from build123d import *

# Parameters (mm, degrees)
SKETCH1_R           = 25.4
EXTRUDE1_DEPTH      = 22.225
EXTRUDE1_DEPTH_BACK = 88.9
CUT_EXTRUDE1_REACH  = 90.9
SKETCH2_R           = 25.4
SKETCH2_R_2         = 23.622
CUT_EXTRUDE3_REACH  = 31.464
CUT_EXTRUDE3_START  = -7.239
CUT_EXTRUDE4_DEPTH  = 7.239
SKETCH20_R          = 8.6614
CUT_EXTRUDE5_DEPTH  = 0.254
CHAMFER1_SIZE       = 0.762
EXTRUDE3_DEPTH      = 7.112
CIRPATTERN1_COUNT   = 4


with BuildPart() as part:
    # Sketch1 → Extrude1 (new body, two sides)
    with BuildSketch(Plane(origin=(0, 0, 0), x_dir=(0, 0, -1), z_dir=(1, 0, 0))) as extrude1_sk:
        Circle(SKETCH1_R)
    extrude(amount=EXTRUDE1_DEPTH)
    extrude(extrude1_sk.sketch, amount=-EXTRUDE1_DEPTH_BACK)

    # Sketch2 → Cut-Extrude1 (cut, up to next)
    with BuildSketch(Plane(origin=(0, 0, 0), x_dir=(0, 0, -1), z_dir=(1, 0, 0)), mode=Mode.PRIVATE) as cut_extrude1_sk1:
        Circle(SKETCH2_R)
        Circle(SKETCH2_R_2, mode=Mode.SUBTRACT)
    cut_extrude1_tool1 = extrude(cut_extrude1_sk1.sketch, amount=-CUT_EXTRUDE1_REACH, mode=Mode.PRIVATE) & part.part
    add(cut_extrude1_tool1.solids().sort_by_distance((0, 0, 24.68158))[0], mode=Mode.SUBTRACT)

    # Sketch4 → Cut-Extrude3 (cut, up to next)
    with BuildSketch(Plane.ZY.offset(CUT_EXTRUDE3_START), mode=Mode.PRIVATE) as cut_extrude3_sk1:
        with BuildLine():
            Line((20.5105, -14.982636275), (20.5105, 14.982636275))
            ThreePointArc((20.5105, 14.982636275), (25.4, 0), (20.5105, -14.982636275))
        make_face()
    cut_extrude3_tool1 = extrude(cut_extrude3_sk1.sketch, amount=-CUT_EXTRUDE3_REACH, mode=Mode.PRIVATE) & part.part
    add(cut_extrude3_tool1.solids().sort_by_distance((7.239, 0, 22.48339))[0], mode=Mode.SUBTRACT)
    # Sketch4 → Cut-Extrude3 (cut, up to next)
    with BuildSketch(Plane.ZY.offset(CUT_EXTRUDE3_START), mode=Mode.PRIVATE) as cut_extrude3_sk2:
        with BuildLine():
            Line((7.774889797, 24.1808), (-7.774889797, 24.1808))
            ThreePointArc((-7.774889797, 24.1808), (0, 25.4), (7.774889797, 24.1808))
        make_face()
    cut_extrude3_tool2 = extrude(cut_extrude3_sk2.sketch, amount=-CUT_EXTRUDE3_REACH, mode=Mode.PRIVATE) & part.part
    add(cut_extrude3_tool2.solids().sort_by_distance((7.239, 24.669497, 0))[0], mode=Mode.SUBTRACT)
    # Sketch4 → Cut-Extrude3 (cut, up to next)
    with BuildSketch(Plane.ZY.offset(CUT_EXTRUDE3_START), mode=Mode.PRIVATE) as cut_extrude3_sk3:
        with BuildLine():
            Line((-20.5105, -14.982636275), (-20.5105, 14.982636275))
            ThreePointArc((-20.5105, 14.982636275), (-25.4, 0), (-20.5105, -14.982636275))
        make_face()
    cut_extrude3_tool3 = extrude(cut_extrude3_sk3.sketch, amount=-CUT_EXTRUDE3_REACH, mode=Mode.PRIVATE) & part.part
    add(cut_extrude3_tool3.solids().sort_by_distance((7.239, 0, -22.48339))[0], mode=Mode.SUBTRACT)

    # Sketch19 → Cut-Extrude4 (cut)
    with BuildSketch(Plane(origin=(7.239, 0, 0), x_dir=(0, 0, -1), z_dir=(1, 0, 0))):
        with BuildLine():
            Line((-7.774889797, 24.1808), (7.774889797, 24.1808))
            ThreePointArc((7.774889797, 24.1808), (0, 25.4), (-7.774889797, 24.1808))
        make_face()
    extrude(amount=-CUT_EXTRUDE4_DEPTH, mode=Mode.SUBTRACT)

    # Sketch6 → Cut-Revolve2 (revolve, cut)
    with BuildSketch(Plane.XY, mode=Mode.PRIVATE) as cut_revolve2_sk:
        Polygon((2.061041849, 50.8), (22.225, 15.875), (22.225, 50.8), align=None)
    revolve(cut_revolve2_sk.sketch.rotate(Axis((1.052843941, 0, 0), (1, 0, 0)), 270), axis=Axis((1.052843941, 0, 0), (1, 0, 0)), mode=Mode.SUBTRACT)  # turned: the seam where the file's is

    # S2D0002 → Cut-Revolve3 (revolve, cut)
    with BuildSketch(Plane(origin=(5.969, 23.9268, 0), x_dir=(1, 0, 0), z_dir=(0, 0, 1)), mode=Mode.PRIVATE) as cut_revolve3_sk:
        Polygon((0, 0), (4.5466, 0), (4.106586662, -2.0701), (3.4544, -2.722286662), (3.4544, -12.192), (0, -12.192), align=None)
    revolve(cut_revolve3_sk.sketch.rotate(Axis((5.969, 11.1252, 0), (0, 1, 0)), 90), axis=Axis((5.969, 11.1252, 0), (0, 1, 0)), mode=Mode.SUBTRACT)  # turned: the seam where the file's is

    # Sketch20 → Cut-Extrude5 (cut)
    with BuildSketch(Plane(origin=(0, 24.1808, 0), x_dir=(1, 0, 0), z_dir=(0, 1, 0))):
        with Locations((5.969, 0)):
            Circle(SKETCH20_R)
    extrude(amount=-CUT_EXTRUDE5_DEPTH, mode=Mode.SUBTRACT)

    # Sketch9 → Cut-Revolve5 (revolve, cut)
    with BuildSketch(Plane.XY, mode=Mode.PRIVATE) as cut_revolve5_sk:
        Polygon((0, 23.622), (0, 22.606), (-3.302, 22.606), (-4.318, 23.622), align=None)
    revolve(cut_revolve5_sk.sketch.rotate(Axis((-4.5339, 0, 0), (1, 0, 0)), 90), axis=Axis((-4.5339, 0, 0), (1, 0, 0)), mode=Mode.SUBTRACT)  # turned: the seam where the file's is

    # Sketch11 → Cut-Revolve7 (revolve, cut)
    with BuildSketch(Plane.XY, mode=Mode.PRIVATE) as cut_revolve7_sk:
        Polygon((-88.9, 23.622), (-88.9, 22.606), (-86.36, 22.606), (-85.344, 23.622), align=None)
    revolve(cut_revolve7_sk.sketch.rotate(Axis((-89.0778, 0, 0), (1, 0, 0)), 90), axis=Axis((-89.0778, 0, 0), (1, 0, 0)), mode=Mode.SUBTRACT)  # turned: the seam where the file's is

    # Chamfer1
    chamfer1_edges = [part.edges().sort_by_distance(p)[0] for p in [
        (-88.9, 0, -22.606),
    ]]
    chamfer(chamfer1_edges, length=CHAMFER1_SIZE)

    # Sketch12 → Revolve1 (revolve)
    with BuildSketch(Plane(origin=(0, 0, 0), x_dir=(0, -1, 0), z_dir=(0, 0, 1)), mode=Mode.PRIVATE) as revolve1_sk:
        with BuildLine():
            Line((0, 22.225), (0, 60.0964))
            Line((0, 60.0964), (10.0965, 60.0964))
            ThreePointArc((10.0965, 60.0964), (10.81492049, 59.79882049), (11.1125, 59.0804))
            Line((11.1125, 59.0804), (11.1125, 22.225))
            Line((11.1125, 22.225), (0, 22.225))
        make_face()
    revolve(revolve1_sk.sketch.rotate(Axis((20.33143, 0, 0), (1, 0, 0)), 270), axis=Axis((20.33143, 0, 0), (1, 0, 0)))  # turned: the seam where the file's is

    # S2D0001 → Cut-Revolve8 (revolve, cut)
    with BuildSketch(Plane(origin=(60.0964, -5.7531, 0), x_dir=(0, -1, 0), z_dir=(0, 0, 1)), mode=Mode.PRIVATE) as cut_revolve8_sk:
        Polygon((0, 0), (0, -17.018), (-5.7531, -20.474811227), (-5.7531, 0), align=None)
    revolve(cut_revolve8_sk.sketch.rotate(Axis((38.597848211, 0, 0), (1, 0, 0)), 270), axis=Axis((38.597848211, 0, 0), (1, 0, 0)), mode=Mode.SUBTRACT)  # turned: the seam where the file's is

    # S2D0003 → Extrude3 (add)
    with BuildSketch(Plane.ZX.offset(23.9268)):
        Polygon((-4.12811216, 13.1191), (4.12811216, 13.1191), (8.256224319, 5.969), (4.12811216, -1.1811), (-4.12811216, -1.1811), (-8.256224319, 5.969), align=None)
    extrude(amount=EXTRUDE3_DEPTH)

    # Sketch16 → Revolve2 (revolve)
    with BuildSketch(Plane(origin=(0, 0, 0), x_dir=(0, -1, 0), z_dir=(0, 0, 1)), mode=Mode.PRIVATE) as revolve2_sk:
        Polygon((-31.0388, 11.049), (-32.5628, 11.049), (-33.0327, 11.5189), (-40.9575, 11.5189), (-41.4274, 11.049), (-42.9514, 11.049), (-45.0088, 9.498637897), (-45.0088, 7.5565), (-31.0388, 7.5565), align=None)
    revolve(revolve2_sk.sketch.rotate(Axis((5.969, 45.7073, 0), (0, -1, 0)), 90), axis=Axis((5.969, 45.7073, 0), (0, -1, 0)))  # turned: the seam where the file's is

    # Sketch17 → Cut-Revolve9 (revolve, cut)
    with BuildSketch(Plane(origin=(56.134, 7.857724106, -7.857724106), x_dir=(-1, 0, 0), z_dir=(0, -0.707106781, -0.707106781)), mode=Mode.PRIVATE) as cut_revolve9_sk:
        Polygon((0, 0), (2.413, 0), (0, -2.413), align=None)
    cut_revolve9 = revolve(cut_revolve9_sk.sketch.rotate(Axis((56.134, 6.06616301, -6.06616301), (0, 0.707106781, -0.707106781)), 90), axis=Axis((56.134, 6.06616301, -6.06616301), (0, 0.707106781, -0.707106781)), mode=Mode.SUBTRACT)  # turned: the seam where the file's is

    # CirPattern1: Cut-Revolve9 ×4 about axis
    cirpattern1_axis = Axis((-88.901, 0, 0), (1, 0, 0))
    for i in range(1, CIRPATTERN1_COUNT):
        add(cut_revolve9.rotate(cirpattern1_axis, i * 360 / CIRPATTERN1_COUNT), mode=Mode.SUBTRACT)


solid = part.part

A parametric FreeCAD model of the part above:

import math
import FreeCAD as App
import Part
import Sketcher
Q = App.Units.Quantity


def edges_at(feature, points):
    """Names of the edges that pass closest to the given points."""
    edges = feature.Shape.Edges
    near = lambda p: min(range(len(edges)), key=lambda i: edges[i].distToShape(Part.Vertex(*p))[0])
    return sorted({f"Edge{near(p) + 1}" for p in points})

doc = App.newDocument("Part")
body = doc.addObject("PartDesign::Body", "Body")

# Sketch on YZ plane
sketch1 = body.newObject("Sketcher::SketchObject", "Sketch")
sketch1.AttachmentSupport = (doc.getObject("YZ_Plane"), [""])
sketch1.MapMode = "FlatFace"
sketch1.addGeometry(Part.Circle(App.Vector(0, 0, 0), App.Vector(0, 0, 1), 25), False)
sketch1.addConstraint([
    Sketcher.Constraint("Coincident", 0, 3, -1, 1),
    Sketcher.Constraint("Diameter", 0, Q("2 in")),
])
pad1 = body.newObject("PartDesign::Pad", "Pad")
pad1.Profile = sketch1
pad1.Type = "TwoLengths"
pad1.Length = Q("0.875 in")
pad1.Length2 = Q("3.5 in")

# Sketch on YZ plane
sketch2 = body.newObject("Sketcher::SketchObject", "Sketch001")
sketch2.AttachmentSupport = (doc.getObject("YZ_Plane"), [""])
sketch2.MapMode = "FlatFace"
sketch2.addGeometry([
    Part.Circle(App.Vector(0, 0, 0), App.Vector(0, 0, 1), 25),
    Part.Circle(App.Vector(0, 0, 0), App.Vector(0, 0, 1), 24),
], False)
sketch2.addConstraint([
    Sketcher.Constraint("Coincident", 0, 3, -1, 1),
    Sketcher.Constraint("Coincident", 1, 3, -1, 1),
    Sketcher.Constraint("Diameter", 0, Q("2 in")),
    Sketcher.Constraint("Diameter", 1, Q("1.86 in")),
])
pocket1 = body.newObject("PartDesign::Pocket", "Pocket")
pocket1.Profile = sketch2
pocket1.Type = "UpToFirst"

# Sketch on YZ plane
sketch3 = body.newObject("Sketcher::SketchObject", "Sketch002")
sketch3.AttachmentSupport = (doc.getObject("YZ_Plane"), [""])
sketch3.MapMode = "FlatFace"
sketch3.AttachmentOffset = App.Placement(App.Vector(0, 0, 0.285 * 25.4), App.Rotation())
sketch3.addGeometry([
    Part.LineSegment(App.Vector(15, 21, 0), App.Vector(-15, 21, 0)),
    Part.ArcOfCircle(Part.Circle(App.Vector(0, 0, 0), App.Vector(0, 0, 1), 25), math.radians(54), math.radians(126)),
], False)
sketch3.addConstraint([
    Sketcher.Constraint("Coincident", 0, 1, 1, 1),
    Sketcher.Constraint("Coincident", 1, 2, 0, 2),
    Sketcher.Constraint("Horizontal", 0),
    Sketcher.Constraint("Coincident", 1, 3, -1, 1),
    Sketcher.Constraint("Radius", 1, Q("1 in")),
    Sketcher.Constraint("DistanceY", -1, 1, 0, 1, Q("0.8075 in")),
])
pocket2 = body.newObject("PartDesign::Pocket", "Pocket001")
pocket2.Profile = sketch3
pocket2.Type = "UpToFirst"
pocket2.Reversed = True

# Sketch on YZ plane
sketch4 = body.newObject("Sketcher::SketchObject", "Sketch003")
sketch4.AttachmentSupport = (doc.getObject("YZ_Plane"), [""])
sketch4.MapMode = "FlatFace"
sketch4.AttachmentOffset = App.Placement(App.Vector(0, 0, 0.285 * 25.4), App.Rotation())
sketch4.addGeometry([
    Part.LineSegment(App.Vector(24, -8, 0), App.Vector(24, 8, 0)),
    Part.ArcOfCircle(Part.Circle(App.Vector(0, 0, 0), App.Vector(0, 0, 1), 25), math.radians(-18), math.radians(18)),
], False)
sketch4.addConstraint([
    Sketcher.Constraint("Coincident", 0, 1, 1, 1),
    Sketcher.Constraint("Coincident", 1, 2, 0, 2),
    Sketcher.Constraint("Vertical", 0),
    Sketcher.Constraint("Coincident", 1, 3, -1, 1),
    Sketcher.Constraint("Radius", 1, Q("1 in")),
    Sketcher.Constraint("DistanceX", -1, 1, 0, 1, Q("0.952 in")),
])
pocket3 = body.newObject("PartDesign::Pocket", "Pocket002")
pocket3.Profile = sketch4
pocket3.Type = "UpToFirst"
pocket3.Reversed = True

# Sketch on YZ plane
sketch5 = body.newObject("Sketcher::SketchObject", "Sketch004")
sketch5.AttachmentSupport = (doc.getObject("YZ_Plane"), [""])
sketch5.MapMode = "FlatFace"
sketch5.AttachmentOffset = App.Placement(App.Vector(0, 0, 0.285 * 25.4), App.Rotation())
sketch5.addGeometry([
    Part.LineSegment(App.Vector(-15, -21, 0), App.Vector(15, -21, 0)),
    Part.ArcOfCircle(Part.Circle(App.Vector(0, 0, 0), App.Vector(0, 0, 1), 25), math.radians(-126), math.radians(-54)),
], False)
sketch5.addConstraint([
    Sketcher.Constraint("Coincident", 0, 1, 1, 1),
    Sketcher.Constraint("Coincident", 1, 2, 0, 2),
    Sketcher.Constraint("Horizontal", 0),
    Sketcher.Constraint("Coincident", 1, 3, -1, 1),
    Sketcher.Constraint("Radius", 1, Q("1 in")),
    Sketcher.Constraint("DistanceY", 0, 1, -1, 1, Q("0.8075 in")),
])
pocket4 = body.newObject("PartDesign::Pocket", "Pocket003")
pocket4.Profile = sketch5
pocket4.Type = "UpToFirst"
pocket4.Reversed = True

# Sketch on YZ plane
sketch6 = body.newObject("Sketcher::SketchObject", "Sketch005")
sketch6.AttachmentSupport = (doc.getObject("YZ_Plane"), [""])
sketch6.MapMode = "FlatFace"
sketch6.AttachmentOffset = App.Placement(App.Vector(0, 0, 0.285 * 25.4), App.Rotation())
sketch6.addGeometry([
    Part.LineSegment(App.Vector(24, 8, 0), App.Vector(24, -8, 0)),
    Part.ArcOfCircle(Part.Circle(App.Vector(0, 0, 0), App.Vector(0, 0, 1), 25), math.radians(-18), math.radians(18)),
], False)
sketch6.addConstraint([
    Sketcher.Constraint("Coincident", 0, 1, 1, 2),
    Sketcher.Constraint("Coincident", 1, 1, 0, 2),
    Sketcher.Constraint("Vertical", 0),
    Sketcher.Constraint("Coincident", 1, 3, -1, 1),
    Sketcher.Constraint("Radius", 1, Q("1 in")),
    Sketcher.Constraint("DistanceX", -1, 1, 0, 1, Q("0.952 in")),
])
pocket5 = body.newObject("PartDesign::Pocket", "Pocket004")
pocket5.Profile = sketch6
pocket5.Length = Q("0.285 in")

# Sketch on XY plane
sketch7 = body.newObject("Sketcher::SketchObject", "Sketch006")
sketch7.AttachmentSupport = (doc.getObject("XY_Plane"), [""])
sketch7.MapMode = "FlatFace"
sketch7.addGeometry([
    Part.LineSegment(App.Vector(2, 51, 0), App.Vector(22, 16, 0)),
    Part.LineSegment(App.Vector(22, 16, 0), App.Vector(22, 51, 0)),
    Part.LineSegment(App.Vector(22, 51, 0), App.Vector(2, 51, 0)),
], False)
sketch7.addConstraint([
    Sketcher.Constraint("Coincident", 0, 2, 1, 1),
    Sketcher.Constraint("Coincident", 1, 2, 2, 1),
    Sketcher.Constraint("Coincident", 2, 2, 0, 1),
    Sketcher.Constraint("Vertical", 1),
    Sketcher.Constraint("Horizontal", 2),
    Sketcher.Constraint("DistanceY", -1, 1, 1, 2, Q("2 in")),
    Sketcher.Constraint("Angle", 0, Q("-60 deg")),
    Sketcher.Constraint("DistanceY", 1, 1, 1, 2, Q("1.375 in")),
    Sketcher.Constraint("DistanceX", -1, 1, 0, 2, Q("0.875 in")),
])
groove = body.newObject("PartDesign::Groove", "Groove")
groove.Profile = sketch7
groove.ReferenceAxis = (sketch7, ["H_Axis"])
groove.Angle = 360

# Sketch on XY plane
sketch8 = body.newObject("Sketcher::SketchObject", "Sketch007")
sketch8.AttachmentSupport = (doc.getObject("XY_Plane"), [""])
sketch8.MapMode = "FlatFace"
sketch8.addGeometry([
    Part.LineSegment(App.Vector(10.5, 23.9, 0), App.Vector(6, 23.9, 0)),  # 0
    Part.LineSegment(App.Vector(6, 23.9, 0), App.Vector(6, 11.7, 0)),  # 1
    Part.LineSegment(App.Vector(6, 11.7, 0), App.Vector(9.4, 11.7, 0)),  # 2
    Part.LineSegment(App.Vector(9.4, 11.7, 0), App.Vector(9.4, 21.2, 0)),  # 3
    Part.LineSegment(App.Vector(9.4, 21.2, 0), App.Vector(10.1, 21.9, 0)),  # 4
    Part.LineSegment(App.Vector(10.1, 21.9, 0), App.Vector(10.5, 23.9, 0)),  # 5
], False)
sketch8.addGeometry(Part.LineSegment(App.Vector(6, 11.7, 0), App.Vector(6, 23.9, 0)), True)  # axis
sketch8.addConstraint([
    Sketcher.Constraint("Coincident", 0, 2, 1, 1),
    Sketcher.Constraint("Coincident", 1, 2, 2, 1),
    Sketcher.Constraint("Coincident", 2, 2, 3, 1),
    Sketcher.Constraint("Coincident", 3, 2, 4, 1),
    Sketcher.Constraint("Coincident", 4, 2, 5, 1),
    Sketcher.Constraint("Coincident", 5, 2, 0, 1),
    Sketcher.Constraint("Horizontal", 0),
    Sketcher.Constraint("Vertical", 1),
    Sketcher.Constraint("Horizontal", 2),
    Sketcher.Constraint("Vertical", 3),
    Sketcher.Constraint("Vertical", 6),
    Sketcher.Constraint("Coincident", 6, 1, 1, 2),
    Sketcher.Constraint("Horizontal", 5, 2, 6, 2),
    Sketcher.Constraint("Angle", 4, Q("45 deg")),
    Sketcher.Constraint("Angle", 5, Q("78 deg")),
    Sketcher.Constraint("DistanceY", 1, 2, 1, 1, Q("0.48 in")),
    Sketcher.Constraint("DistanceX", 0, 2, 0, 1, Q("0.179 in")),
    Sketcher.Constraint("DistanceX", 2, 1, 2, 2, Q("0.136 in")),
    Sketcher.Constraint("DistanceX", -1, 1, 0, 2, Q("0.235 in")),
    Sketcher.Constraint("DistanceY", -1, 1, 0, 2, Q("0.942 in")),
    Sketcher.Constraint("DistanceY", -1, 1, 4, 2, Q("0.8605 in")),
])
groove2 = body.newObject("PartDesign::Groove", "Groove001")
groove2.Profile = sketch8
groove2.ReferenceAxis = (sketch8, ["Axis0"])
groove2.Angle = 360

# Sketch on XZ plane
sketch9 = body.newObject("Sketcher::SketchObject", "Sketch008")
sketch9.AttachmentSupport = (doc.getObject("XZ_Plane"), [""])
sketch9.MapMode = "FlatFace"
sketch9.AttachmentOffset = App.Placement(App.Vector(0, 0, -0.952 * 25.4), App.Rotation())
sketch9.addGeometry(Part.Circle(App.Vector(6, 0, 0), App.Vector(0, 0, 1), 9), False)
sketch9.addConstraint([
    Sketcher.Constraint("PointOnObject", 0, 3, -1),
    Sketcher.Constraint("Diameter", 0, Q("0.682 in")),
    Sketcher.Constraint("DistanceX", -1, 1, 0, 3, Q("0.235 in")),
])
pocket6 = body.newObject("PartDesign::Pocket", "Pocket005")
pocket6.Profile = sketch9
pocket6.Length = Q("0.01 in")
pocket6.Reversed = True

# Sketch on XY plane
sketch10 = body.newObject("Sketcher::SketchObject", "Sketch009")
sketch10.AttachmentSupport = (doc.getObject("XY_Plane"), [""])
sketch10.MapMode = "FlatFace"
sketch10.addGeometry([
    Part.LineSegment(App.Vector(0, 22.6, 0), App.Vector(0, 23.6, 0)),
    Part.LineSegment(App.Vector(0, 23.6, 0), App.Vector(-4.3, 23.6, 0)),
    Part.LineSegment(App.Vector(-4.3, 23.6, 0), App.Vector(-3.3, 22.6, 0)),
    Part.LineSegment(App.Vector(-3.3, 22.6, 0), App.Vector(0, 22.6, 0)),
], False)
sketch10.addConstraint([
    Sketcher.Constraint("Coincident", 0, 2, 1, 1),
    Sketcher.Constraint("Coincident", 1, 2, 2, 1),
    Sketcher.Constraint("Coincident", 2, 2, 3, 1),
    Sketcher.Constraint("Coincident", 3, 2, 0, 1),
    Sketcher.Constraint("Vertical", 0),
    Sketcher.Constraint("Horizontal", 1),
    Sketcher.Constraint("Horizontal", 3),
    Sketcher.Constraint("PointOnObject", 0, 2, -2),
    Sketcher.Constraint("Angle", 2, Q("-45 deg")),
    Sketcher.Constraint("DistanceX", 1, 2, 1, 1, Q("0.17 in")),
    Sketcher.Constraint("DistanceX", 3, 1, 3, 2, Q("0.13 in")),
    Sketcher.Constraint("DistanceY", -1, 1, 0, 2, Q("0.93 in")),
])
groove3 = body.newObject("PartDesign::Groove", "Groove002")
groove3.Profile = sketch10
groove3.ReferenceAxis = (sketch10, ["H_Axis"])
groove3.Angle = 360

# Sketch on XY plane
sketch11 = body.newObject("Sketcher::SketchObject", "Sketch010")
sketch11.AttachmentSupport = (doc.getObject("XY_Plane"), [""])
sketch11.MapMode = "FlatFace"
sketch11.addGeometry([
    Part.LineSegment(App.Vector(-88.9, 23.6, 0), App.Vector(-88.9, 22.6, 0)),
    Part.LineSegment(App.Vector(-88.9, 22.6, 0), App.Vector(-86.4, 22.6, 0)),
    Part.LineSegment(App.Vector(-86.4, 22.6, 0), App.Vector(-85.3, 23.6, 0)),
    Part.LineSegment(App.Vector(-85.3, 23.6, 0), App.Vector(-88.9, 23.6, 0)),
], False)
sketch11.addConstraint([
    Sketcher.Constraint("Coincident", 0, 2, 1, 1),
    Sketcher.Constraint("Coincident", 1, 2, 2, 1),
    Sketcher.Constraint("Coincident", 2, 2, 3, 1),
    Sketcher.Constraint("Coincident", 3, 2, 0, 1),
    Sketcher.Constraint("Vertical", 0),
    Sketcher.Constraint("Horizontal", 1),
    Sketcher.Constraint("Horizontal", 3),
    Sketcher.Constraint("DistanceX", 1, 1, 1, 2, Q("0.1 in")),
    Sketcher.Constraint("Angle", 2, Q("45 deg")),
    Sketcher.Constraint("DistanceX", 3, 2, 3, 1, Q("0.14 in")),
    Sketcher.Constraint("DistanceX", 0, 2, -1, 1, Q("3.5 in")),
    Sketcher.Constraint("DistanceY", -1, 1, 0, 2, Q("0.89 in")),
])
groove4 = body.newObject("PartDesign::Groove", "Groove003")
groove4.Profile = sketch11
groove4.ReferenceAxis = (sketch11, ["H_Axis"])
groove4.Angle = 360
doc.recompute()

chamfer = body.newObject("PartDesign::Chamfer", "Chamfer")
chamfer.Base = (groove4, edges_at(groove4, [(-88.9, 0, -22.606)]))
chamfer.Size = Q("0.03 in")

# Sketch on XY plane
sketch12 = body.newObject("Sketcher::SketchObject", "Sketch011")
sketch12.AttachmentSupport = (doc.getObject("XY_Plane"), [""])
sketch12.MapMode = "FlatFace"
sketch12.addGeometry([
    Part.LineSegment(App.Vector(60.1, 0, 0), App.Vector(22.2, 0, 0)),  # 0
    Part.LineSegment(App.Vector(22.2, 0, 0), App.Vector(22.2, -11.1, 0)),  # 1
    Part.LineSegment(App.Vector(22.2, -11.1, 0), App.Vector(59.1, -11.1, 0)),  # 2
    Part.ArcOfCircle(Part.Circle(App.Vector(59.1, -10.1, 0), App.Vector(0, 0, 1), 1), math.radians(-90), math.radians(0)),  # 3
    Part.LineSegment(App.Vector(60.1, -10.1, 0), App.Vector(60.1, 0, 0)),  # 4
], False)
sketch12.addConstraint([
    Sketcher.Constraint("Coincident", 0, 2, 1, 1),
    Sketcher.Constraint("Coincident", 1, 2, 2, 1),
    Sketcher.Constraint("Tangent", 2, 2, 3, 1),
    Sketcher.Constraint("Tangent", 3, 2, 4, 1),
    Sketcher.Constraint("Coincident", 4, 2, 0, 1),
    Sketcher.Constraint("Horizontal", 0),
    Sketcher.Constraint("Vertical", 1),
    Sketcher.Constraint("Horizontal", 2),
    Sketcher.Constraint("Vertical", 4),
    Sketcher.Constraint("PointOnObject", 0, 2, -1),
    Sketcher.Constraint("Radius", 3, Q("0.04 in")),
    Sketcher.Constraint("DistanceX", 0, 2, 0, 1, Q("1.491 in")),
    Sketcher.Constraint("DistanceY", 1, 2, 1, 1, Q("0.4375 in")),
    Sketcher.Constraint("DistanceX", -1, 1, 3, 3, Q("2.326 in")),
])
revolution = body.newObject("PartDesign::Revolution", "Revolution")
revolution.Profile = sketch12
revolution.ReferenceAxis = (sketch12, ["H_Axis"])
revolution.Angle = 360

# Sketch on XY plane
sketch13 = body.newObject("Sketcher::SketchObject", "Sketch012")
sketch13.AttachmentSupport = (doc.getObject("XY_Plane"), [""])
sketch13.MapMode = "FlatFace"
sketch13.addGeometry([
    Part.LineSegment(App.Vector(43, -6, 0), App.Vector(60, -6, 0)),
    Part.LineSegment(App.Vector(60, -6, 0), App.Vector(60, 0, 0)),
    Part.LineSegment(App.Vector(60, 0, 0), App.Vector(40, 0, 0)),
    Part.LineSegment(App.Vector(40, 0, 0), App.Vector(43, -6, 0)),
], False)
sketch13.addConstraint([
    Sketcher.Constraint("Coincident", 0, 2, 1, 1),
    Sketcher.Constraint("Coincident", 1, 2, 2, 1),
    Sketcher.Constraint("Coincident", 2, 2, 3, 1),
    Sketcher.Constraint("Coincident", 3, 2, 0, 1),
    Sketcher.Constraint("Horizontal", 0),
    Sketcher.Constraint("Vertical", 1),
    Sketcher.Constraint("Horizontal", 2),
    Sketcher.Constraint("PointOnObject", 1, 2, -1),
    Sketcher.Constraint("Angle", 3, Q("-59 deg")),
    Sketcher.Constraint("DistanceX", 0, 1, 0, 2, Q("0.67 in")),
    Sketcher.Constraint("DistanceY", 1, 1, 1, 2, Q("0.2265 in")),
    Sketcher.Constraint("DistanceX", -1, 1, 0, 2, Q("2.366 in")),
])
groove5 = body.newObject("PartDesign::Groove", "Groove004")
groove5.Profile = sketch13
groove5.ReferenceAxis = (sketch13, ["H_Axis"])
groove5.Angle = 360

# Sketch on XZ plane
sketch14 = body.newObject("Sketcher::SketchObject", "Sketch013")
sketch14.AttachmentSupport = (doc.getObject("XZ_Plane"), [""])
sketch14.MapMode = "FlatFace"
sketch14.AttachmentOffset = App.Placement(App.Vector(0, 0, -0.942 * 25.4), App.Rotation())
sketch14.addGeometry([
    Part.LineSegment(App.Vector(13, 4, 0), App.Vector(13, -4, 0)),  # 0
    Part.LineSegment(App.Vector(13, -4, 0), App.Vector(6, -8, 0)),  # 1
    Part.LineSegment(App.Vector(6, -8, 0), App.Vector(-1, -4, 0)),  # 2
    Part.LineSegment(App.Vector(-1, -4, 0), App.Vector(-1, 4, 0)),  # 3
    Part.LineSegment(App.Vector(-1, 4, 0), App.Vector(6, 8, 0)),  # 4
    Part.LineSegment(App.Vector(6, 8, 0), App.Vector(13, 4, 0)),  # 5
], False)
sketch14.addConstraint([
    Sketcher.Constraint("Coincident", 0, 2, 1, 1),
    Sketcher.Constraint("Coincident", 1, 2, 2, 1),
    Sketcher.Constraint("Coincident", 2, 2, 3, 1),
    Sketcher.Constraint("Coincident", 3, 2, 4, 1),
    Sketcher.Constraint("Coincident", 4, 2, 5, 1),
    Sketcher.Constraint("Coincident", 5, 2, 0, 1),
    Sketcher.Constraint("Vertical", 0),
    Sketcher.Constraint("Vertical", 3),
    Sketcher.Constraint("Symmetric", 1, 2, 4, 2, -1),
    Sketcher.Constraint("Parallel", 1, 4),
    Sketcher.Constraint("Parallel", 2, 5),
    Sketcher.Constraint("Horizontal", 0, 2, 2, 2),
    Sketcher.Constraint("Horizontal", 3, 2, 5, 2),
    Sketcher.Constraint("Angle", 1, Q("-150 deg")),
    Sketcher.Constraint("DistanceX", -1, 1, 1, 2, Q("0.235 in")),
    Sketcher.Constraint("DistanceX", 2, 2, 0, 2, Q("0.563 in")),
    Sketcher.Constraint("DistanceY", 0, 2, 0, 1, 8.256224),
])
pad2 = body.newObject("PartDesign::Pad", "Pad001")
pad2.Profile = sketch14
pad2.Length = Q("0.28 in")
pad2.Reversed = True

# Sketch on XY plane
sketch15 = body.newObject("Sketcher::SketchObject", "Sketch014")
sketch15.AttachmentSupport = (doc.getObject("XY_Plane"), [""])
sketch15.MapMode = "FlatFace"
sketch15.addGeometry([
    Part.LineSegment(App.Vector(11, 31, 0), App.Vector(11, 32.6, 0)),  # 0
    Part.LineSegment(App.Vector(11, 32.6, 0), App.Vector(11.5, 33, 0)),  # 1
    Part.LineSegment(App.Vector(11.5, 33, 0), App.Vector(11.5, 41, 0)),  # 2
    Part.LineSegment(App.Vector(11.5, 41, 0), App.Vector(11, 41.4, 0)),  # 3
    Part.LineSegment(App.Vector(11, 41.4, 0), App.Vector(11, 43, 0)),  # 4
    Part.LineSegment(App.Vector(11, 43, 0), App.Vector(9.5, 45, 0)),  # 5
    Part.LineSegment(App.Vector(9.5, 45, 0), App.Vector(7.6, 45, 0)),  # 6
    Part.LineSegment(App.Vector(7.6, 45, 0), App.Vector(7.6, 31, 0)),  # 7
    Part.LineSegment(App.Vector(7.6, 31, 0), App.Vector(11, 31, 0)),  # 8
], False)
sketch15.addGeometry(Part.LineSegment(App.Vector(6, 45, 0), App.Vector(6, 31, 0)), True)  # axis
sketch15.addConstraint([
    Sketcher.Constraint("Coincident", 0, 2, 1, 1),
    Sketcher.Constraint("Coincident", 1, 2, 2, 1),
    Sketcher.Constraint("Coincident", 2, 2, 3, 1),
    Sketcher.Constraint("Coincident", 3, 2, 4, 1),
    Sketcher.Constraint("Coincident", 4, 2, 5, 1),
    Sketcher.Constraint("Coincident", 5, 2, 6, 1),
    Sketcher.Constraint("Coincident", 6, 2, 7, 1),
    Sketcher.Constraint("Coincident", 7, 2, 8, 1),
    Sketcher.Constraint("Coincident", 8, 2, 0, 1),
    Sketcher.Constraint("Vertical", 0),
    Sketcher.Constraint("Vertical", 2),
    Sketcher.Constraint("Vertical", 4),
    Sketcher.Constraint("Horizontal", 6),
    Sketcher.Constraint("Vertical", 7),
    Sketcher.Constraint("Horizontal", 8),
    Sketcher.Constraint("Vertical", 9),
    Sketcher.Constraint("Perpendicular", 1, 3),
    Sketcher.Constraint("Horizontal", 6, 2, 9, 1),
    Sketcher.Constraint("Horizontal", 8, 2, 9, 2),
    Sketcher.Constraint("Vertical", 0, 2, 3, 2),
    Sketcher.Constraint("Equal", 0, 4),
    Sketcher.Constraint("Equal", 1, 3),
    Sketcher.Constraint("Angle", 5, Q("127 deg")),
    Sketcher.Constraint("DistanceY", 0, 1, 0, 2, Q("0.06 in")),
    Sketcher.Constraint("DistanceY", 7, 2, 7, 1, Q("0.55 in")),
    Sketcher.Constraint("DistanceX", 9, 1, 4, 2, Q("0.2 in")),
    Sketcher.Constraint("DistanceY", 2, 1, 2, 2, Q("0.312 in")),
    Sketcher.Constraint("DistanceX", 8, 1, 8, 2, Q("0.1375 in")),
    Sketcher.Constraint("DistanceX", -1, 1, 0, 2, Q("0.435 in")),
    Sketcher.Constraint("DistanceY", -1, 1, 0, 2, Q("1.282 in")),
    Sketcher.Constraint("DistanceY", -1, 1, 3, 2, Q("1.631 in")),
])
revolution2 = body.newObject("PartDesign::Revolution", "Revolution001")
revolution2.Profile = sketch15
revolution2.ReferenceAxis = (sketch15, ["Axis0"])
revolution2.Angle = 360

# Sketch on an angled plane
sketch16 = body.newObject("Sketcher::SketchObject", "Sketch015")
sketch16.Placement = App.Placement(App.Vector(56.134, 7.857724, -7.857724), App.Rotation(App.Vector(-1, 0, 0), App.Vector(0, 0.707106781, -0.707106781), App.Vector(0, -0.707106781, -0.707106781), "ZXY"))
sketch16.addGeometry([
    Part.LineSegment(App.Vector(2.4, 0, 0), App.Vector(0, 0, 0)),
    Part.LineSegment(App.Vector(0, 0, 0), App.Vector(0, -2.4, 0)),
    Part.LineSegment(App.Vector(0, -2.4, 0), App.Vector(2.4, 0, 0)),
], False)
sketch16.addConstraint([
    Sketcher.Constraint("Coincident", 0, 2, 1, 1),
    Sketcher.Constraint("Coincident", 1, 2, 2, 1),
    Sketcher.Constraint("Coincident", 2, 2, 0, 1),
    Sketcher.Constraint("Horizontal", 0),
    Sketcher.Constraint("Vertical", 1),
    Sketcher.Constraint("Coincident", 0, 2, -1, 1),
    Sketcher.Constraint("Equal", 0, 1),
    Sketcher.Constraint("DistanceX", 0, 2, 0, 1, Q("0.095 in")),
])
groove6 = body.newObject("PartDesign::Groove", "Groove005")
groove6.Profile = sketch16
groove6.ReferenceAxis = (sketch16, ["V_Axis"])
groove6.Angle = 360
doc.recompute()

polarpattern = body.newObject("PartDesign::PolarPattern", "PolarPattern")
polarpattern.Originals = [groove6]
polarpattern.Axis = (doc.getObject("X_Axis"), [""])
polarpattern.Angle = 360
polarpattern.Occurrences = 4
body.Tip = polarpattern

doc.recompute()
